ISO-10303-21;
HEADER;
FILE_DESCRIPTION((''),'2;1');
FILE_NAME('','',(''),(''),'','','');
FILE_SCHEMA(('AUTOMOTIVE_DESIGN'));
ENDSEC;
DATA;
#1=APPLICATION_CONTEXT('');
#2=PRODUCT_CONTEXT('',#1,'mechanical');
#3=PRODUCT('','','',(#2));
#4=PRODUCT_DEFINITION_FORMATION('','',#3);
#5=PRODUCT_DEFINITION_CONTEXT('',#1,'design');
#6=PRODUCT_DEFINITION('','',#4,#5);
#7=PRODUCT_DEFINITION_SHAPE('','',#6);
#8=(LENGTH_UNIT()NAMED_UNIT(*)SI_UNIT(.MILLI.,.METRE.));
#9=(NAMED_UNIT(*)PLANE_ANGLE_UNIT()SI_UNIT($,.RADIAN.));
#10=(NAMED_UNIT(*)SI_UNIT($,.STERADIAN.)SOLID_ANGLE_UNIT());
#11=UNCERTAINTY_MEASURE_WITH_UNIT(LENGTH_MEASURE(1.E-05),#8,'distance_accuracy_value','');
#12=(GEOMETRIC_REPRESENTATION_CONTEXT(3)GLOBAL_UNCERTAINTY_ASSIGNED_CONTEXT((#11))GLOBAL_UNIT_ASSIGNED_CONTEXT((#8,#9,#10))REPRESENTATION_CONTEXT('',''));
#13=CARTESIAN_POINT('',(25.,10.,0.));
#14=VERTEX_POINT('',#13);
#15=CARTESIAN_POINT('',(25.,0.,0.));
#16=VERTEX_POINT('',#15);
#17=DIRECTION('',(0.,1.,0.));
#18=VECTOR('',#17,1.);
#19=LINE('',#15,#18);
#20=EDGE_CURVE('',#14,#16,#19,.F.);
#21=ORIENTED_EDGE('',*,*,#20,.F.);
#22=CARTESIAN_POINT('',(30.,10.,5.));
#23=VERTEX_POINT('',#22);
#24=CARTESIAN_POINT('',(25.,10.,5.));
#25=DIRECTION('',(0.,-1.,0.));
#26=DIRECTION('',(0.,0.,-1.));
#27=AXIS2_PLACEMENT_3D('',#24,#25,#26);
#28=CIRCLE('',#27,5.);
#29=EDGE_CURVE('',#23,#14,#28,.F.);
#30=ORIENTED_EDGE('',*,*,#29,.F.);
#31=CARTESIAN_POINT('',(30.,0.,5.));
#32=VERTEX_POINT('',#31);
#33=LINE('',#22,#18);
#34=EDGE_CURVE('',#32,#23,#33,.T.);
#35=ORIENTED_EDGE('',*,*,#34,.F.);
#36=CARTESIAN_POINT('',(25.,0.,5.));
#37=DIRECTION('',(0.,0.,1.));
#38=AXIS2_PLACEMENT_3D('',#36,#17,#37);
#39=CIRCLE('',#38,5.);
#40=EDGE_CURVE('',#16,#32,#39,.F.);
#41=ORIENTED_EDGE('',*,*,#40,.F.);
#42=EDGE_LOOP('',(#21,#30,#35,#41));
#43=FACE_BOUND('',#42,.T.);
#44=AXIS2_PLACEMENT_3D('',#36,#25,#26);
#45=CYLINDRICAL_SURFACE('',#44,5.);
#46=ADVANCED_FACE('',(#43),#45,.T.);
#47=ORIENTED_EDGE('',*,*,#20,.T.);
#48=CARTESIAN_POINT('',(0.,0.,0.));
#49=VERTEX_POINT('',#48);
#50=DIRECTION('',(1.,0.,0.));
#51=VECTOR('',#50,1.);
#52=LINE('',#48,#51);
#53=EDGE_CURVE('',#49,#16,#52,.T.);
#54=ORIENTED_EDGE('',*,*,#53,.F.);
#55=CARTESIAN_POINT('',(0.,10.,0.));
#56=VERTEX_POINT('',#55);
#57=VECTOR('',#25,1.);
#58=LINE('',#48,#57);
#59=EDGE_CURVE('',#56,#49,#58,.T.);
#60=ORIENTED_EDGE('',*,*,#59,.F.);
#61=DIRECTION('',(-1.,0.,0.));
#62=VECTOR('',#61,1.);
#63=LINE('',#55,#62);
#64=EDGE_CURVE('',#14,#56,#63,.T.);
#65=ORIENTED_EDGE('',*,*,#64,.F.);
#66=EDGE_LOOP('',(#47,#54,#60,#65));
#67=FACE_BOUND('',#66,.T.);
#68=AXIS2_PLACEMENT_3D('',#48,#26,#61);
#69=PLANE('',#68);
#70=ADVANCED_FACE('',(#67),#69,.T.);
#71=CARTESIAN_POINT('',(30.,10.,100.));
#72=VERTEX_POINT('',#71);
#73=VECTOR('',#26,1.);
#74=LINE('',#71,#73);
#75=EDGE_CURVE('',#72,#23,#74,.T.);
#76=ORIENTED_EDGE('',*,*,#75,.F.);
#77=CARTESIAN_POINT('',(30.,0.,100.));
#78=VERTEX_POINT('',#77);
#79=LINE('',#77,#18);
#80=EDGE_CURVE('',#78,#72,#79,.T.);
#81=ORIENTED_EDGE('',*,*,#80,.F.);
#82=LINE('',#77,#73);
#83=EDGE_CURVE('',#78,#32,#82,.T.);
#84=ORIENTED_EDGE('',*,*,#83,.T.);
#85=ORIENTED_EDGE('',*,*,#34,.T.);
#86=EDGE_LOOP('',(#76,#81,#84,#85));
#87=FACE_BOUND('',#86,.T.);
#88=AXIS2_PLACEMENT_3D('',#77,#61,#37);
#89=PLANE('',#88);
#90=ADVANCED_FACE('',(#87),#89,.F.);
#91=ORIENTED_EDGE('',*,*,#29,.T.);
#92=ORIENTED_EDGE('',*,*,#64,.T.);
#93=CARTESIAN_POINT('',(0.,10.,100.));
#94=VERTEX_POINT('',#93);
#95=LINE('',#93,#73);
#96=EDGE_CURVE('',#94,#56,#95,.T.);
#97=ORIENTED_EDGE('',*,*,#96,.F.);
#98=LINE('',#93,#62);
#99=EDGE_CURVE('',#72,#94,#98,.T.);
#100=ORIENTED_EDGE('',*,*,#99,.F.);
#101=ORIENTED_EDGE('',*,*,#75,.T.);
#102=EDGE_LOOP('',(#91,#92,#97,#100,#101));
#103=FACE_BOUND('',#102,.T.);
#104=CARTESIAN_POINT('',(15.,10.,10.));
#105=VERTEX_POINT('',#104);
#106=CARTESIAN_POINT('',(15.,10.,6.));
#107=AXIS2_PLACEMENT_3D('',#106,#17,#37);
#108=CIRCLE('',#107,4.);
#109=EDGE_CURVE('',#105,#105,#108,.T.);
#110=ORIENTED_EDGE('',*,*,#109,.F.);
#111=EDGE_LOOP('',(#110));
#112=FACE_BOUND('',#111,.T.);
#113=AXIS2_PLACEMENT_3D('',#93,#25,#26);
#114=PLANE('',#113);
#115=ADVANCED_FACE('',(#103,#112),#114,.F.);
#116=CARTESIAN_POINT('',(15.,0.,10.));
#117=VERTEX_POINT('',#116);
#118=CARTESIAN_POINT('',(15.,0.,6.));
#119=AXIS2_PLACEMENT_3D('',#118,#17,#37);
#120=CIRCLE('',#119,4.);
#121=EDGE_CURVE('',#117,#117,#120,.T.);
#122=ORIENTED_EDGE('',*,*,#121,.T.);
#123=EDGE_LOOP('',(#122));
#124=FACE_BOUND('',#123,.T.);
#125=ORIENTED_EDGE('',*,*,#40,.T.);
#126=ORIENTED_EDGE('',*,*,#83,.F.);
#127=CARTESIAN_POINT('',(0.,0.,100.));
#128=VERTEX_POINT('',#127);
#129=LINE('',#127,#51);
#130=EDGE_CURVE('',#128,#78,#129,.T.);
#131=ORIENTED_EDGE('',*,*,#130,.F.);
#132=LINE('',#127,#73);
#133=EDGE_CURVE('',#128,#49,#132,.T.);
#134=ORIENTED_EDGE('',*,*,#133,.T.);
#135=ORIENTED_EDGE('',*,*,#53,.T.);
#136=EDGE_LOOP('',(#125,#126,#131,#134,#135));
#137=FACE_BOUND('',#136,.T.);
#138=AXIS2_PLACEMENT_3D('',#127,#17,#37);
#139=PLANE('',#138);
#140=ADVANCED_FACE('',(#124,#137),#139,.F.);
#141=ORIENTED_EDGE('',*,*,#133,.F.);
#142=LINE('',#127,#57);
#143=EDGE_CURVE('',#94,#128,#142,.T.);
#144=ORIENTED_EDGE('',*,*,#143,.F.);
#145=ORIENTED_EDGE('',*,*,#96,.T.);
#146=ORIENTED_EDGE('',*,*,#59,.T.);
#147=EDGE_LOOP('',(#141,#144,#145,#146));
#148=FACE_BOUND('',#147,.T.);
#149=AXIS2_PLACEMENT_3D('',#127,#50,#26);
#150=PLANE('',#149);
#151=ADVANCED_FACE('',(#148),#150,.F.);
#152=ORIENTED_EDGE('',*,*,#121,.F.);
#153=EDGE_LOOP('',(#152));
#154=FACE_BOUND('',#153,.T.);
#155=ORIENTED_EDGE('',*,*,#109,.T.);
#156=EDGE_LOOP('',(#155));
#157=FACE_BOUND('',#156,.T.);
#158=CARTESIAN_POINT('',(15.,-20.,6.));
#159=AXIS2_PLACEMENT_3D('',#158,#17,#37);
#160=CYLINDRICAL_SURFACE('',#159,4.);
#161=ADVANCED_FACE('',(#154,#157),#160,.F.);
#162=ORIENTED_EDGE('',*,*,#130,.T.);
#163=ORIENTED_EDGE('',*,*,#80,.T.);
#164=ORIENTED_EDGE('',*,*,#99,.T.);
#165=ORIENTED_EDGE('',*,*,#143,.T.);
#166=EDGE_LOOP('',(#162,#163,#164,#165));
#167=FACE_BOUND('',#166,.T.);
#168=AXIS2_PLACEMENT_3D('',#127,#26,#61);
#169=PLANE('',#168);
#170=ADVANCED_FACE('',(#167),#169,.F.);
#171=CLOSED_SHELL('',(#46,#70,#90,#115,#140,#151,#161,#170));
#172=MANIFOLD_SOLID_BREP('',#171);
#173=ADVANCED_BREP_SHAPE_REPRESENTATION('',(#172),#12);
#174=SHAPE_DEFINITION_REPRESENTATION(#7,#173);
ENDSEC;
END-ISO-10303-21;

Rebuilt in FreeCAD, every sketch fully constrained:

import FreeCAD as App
import Part
import Sketcher


def edges_at(feature, points):
    """Names of the edges that pass closest to the given points."""
    edges = feature.Shape.Edges
    near = lambda p: min(range(len(edges)), key=lambda i: edges[i].distToShape(Part.Vertex(*p))[0])
    return sorted({f"Edge{near(p) + 1}" for p in points})


def add_polygon(sketch, points):
    """Adds a closed chain of lines whose ends are joined by coincident constraints."""
    first, n = sketch.GeometryCount, len(points)
    for a, b in zip(points, points[1:] + points[:1]):
        sketch.addGeometry(Part.LineSegment(App.Vector(*a, 0), App.Vector(*b, 0)), False)
    for i in range(n):
        sketch.addConstraint(Sketcher.Constraint("Coincident", first + i, 2, first + (i + 1) % n, 1))

doc = App.newDocument("Part")
body = doc.addObject("PartDesign::Body", "Body")

# Sketch on XY plane
sketch1 = doc.addObject("Sketcher::SketchObject", "Sketch")
body.addObject(sketch1)
sketch1.AttachmentSupport = (doc.XY_Plane, [""])
sketch1.MapMode = "FlatFace"
add_polygon(sketch1, [(0, 10), (0, 0), (30, 0), (30, 10)])  # lines 0-3
sketch1.addConstraint([
    Sketcher.Constraint("Vertical", 0),
    Sketcher.Constraint("Horizontal", 1),
    Sketcher.Constraint("Vertical", 2),
    Sketcher.Constraint("Horizontal", 3),
    Sketcher.Constraint("Coincident", 0, 2, -1, 1),
    Sketcher.Constraint("DistanceX", 1, 1, 1, 2, 30.0),
    Sketcher.Constraint("DistanceY", 0, 2, 0, 1, 10.0),
])
pad1 = doc.addObject("PartDesign::Pad", "Pad")
body.addObject(pad1)
pad1.Profile = sketch1
pad1.Length = 100

# Sketch on XZ plane
sketch2 = doc.addObject("Sketcher::SketchObject", "Sketch001")
body.addObject(sketch2)
sketch2.AttachmentSupport = (doc.XZ_Plane, [""])
sketch2.MapMode = "FlatFace"
sketch2.AttachmentOffset = App.Placement(App.Vector(0, 0, -10), App.Rotation())
sketch2.addGeometry(Part.Circle(App.Vector(15, 6, 0), App.Vector(0, 0, 1), 4), False)
sketch2.addConstraint([
    Sketcher.Constraint("Diameter", 0, 8.0),
    Sketcher.Constraint("DistanceX", -1, 1, 0, 3, 15.0),
    Sketcher.Constraint("DistanceY", -1, 1, 0, 3, 6.0),
])
pocket1 = doc.addObject("PartDesign::Pocket", "Pocket")
body.addObject(pocket1)
pocket1.Profile = sketch2
pocket1.Length = 30
pocket1.Reversed = True
doc.recompute()

fillet = doc.addObject("PartDesign::Fillet", "Fillet")
body.addObject(fillet)
fillet.Base = (pocket1, edges_at(pocket1, [(30, 5, 0)]))
fillet.Radius = 5

doc.recompute()
